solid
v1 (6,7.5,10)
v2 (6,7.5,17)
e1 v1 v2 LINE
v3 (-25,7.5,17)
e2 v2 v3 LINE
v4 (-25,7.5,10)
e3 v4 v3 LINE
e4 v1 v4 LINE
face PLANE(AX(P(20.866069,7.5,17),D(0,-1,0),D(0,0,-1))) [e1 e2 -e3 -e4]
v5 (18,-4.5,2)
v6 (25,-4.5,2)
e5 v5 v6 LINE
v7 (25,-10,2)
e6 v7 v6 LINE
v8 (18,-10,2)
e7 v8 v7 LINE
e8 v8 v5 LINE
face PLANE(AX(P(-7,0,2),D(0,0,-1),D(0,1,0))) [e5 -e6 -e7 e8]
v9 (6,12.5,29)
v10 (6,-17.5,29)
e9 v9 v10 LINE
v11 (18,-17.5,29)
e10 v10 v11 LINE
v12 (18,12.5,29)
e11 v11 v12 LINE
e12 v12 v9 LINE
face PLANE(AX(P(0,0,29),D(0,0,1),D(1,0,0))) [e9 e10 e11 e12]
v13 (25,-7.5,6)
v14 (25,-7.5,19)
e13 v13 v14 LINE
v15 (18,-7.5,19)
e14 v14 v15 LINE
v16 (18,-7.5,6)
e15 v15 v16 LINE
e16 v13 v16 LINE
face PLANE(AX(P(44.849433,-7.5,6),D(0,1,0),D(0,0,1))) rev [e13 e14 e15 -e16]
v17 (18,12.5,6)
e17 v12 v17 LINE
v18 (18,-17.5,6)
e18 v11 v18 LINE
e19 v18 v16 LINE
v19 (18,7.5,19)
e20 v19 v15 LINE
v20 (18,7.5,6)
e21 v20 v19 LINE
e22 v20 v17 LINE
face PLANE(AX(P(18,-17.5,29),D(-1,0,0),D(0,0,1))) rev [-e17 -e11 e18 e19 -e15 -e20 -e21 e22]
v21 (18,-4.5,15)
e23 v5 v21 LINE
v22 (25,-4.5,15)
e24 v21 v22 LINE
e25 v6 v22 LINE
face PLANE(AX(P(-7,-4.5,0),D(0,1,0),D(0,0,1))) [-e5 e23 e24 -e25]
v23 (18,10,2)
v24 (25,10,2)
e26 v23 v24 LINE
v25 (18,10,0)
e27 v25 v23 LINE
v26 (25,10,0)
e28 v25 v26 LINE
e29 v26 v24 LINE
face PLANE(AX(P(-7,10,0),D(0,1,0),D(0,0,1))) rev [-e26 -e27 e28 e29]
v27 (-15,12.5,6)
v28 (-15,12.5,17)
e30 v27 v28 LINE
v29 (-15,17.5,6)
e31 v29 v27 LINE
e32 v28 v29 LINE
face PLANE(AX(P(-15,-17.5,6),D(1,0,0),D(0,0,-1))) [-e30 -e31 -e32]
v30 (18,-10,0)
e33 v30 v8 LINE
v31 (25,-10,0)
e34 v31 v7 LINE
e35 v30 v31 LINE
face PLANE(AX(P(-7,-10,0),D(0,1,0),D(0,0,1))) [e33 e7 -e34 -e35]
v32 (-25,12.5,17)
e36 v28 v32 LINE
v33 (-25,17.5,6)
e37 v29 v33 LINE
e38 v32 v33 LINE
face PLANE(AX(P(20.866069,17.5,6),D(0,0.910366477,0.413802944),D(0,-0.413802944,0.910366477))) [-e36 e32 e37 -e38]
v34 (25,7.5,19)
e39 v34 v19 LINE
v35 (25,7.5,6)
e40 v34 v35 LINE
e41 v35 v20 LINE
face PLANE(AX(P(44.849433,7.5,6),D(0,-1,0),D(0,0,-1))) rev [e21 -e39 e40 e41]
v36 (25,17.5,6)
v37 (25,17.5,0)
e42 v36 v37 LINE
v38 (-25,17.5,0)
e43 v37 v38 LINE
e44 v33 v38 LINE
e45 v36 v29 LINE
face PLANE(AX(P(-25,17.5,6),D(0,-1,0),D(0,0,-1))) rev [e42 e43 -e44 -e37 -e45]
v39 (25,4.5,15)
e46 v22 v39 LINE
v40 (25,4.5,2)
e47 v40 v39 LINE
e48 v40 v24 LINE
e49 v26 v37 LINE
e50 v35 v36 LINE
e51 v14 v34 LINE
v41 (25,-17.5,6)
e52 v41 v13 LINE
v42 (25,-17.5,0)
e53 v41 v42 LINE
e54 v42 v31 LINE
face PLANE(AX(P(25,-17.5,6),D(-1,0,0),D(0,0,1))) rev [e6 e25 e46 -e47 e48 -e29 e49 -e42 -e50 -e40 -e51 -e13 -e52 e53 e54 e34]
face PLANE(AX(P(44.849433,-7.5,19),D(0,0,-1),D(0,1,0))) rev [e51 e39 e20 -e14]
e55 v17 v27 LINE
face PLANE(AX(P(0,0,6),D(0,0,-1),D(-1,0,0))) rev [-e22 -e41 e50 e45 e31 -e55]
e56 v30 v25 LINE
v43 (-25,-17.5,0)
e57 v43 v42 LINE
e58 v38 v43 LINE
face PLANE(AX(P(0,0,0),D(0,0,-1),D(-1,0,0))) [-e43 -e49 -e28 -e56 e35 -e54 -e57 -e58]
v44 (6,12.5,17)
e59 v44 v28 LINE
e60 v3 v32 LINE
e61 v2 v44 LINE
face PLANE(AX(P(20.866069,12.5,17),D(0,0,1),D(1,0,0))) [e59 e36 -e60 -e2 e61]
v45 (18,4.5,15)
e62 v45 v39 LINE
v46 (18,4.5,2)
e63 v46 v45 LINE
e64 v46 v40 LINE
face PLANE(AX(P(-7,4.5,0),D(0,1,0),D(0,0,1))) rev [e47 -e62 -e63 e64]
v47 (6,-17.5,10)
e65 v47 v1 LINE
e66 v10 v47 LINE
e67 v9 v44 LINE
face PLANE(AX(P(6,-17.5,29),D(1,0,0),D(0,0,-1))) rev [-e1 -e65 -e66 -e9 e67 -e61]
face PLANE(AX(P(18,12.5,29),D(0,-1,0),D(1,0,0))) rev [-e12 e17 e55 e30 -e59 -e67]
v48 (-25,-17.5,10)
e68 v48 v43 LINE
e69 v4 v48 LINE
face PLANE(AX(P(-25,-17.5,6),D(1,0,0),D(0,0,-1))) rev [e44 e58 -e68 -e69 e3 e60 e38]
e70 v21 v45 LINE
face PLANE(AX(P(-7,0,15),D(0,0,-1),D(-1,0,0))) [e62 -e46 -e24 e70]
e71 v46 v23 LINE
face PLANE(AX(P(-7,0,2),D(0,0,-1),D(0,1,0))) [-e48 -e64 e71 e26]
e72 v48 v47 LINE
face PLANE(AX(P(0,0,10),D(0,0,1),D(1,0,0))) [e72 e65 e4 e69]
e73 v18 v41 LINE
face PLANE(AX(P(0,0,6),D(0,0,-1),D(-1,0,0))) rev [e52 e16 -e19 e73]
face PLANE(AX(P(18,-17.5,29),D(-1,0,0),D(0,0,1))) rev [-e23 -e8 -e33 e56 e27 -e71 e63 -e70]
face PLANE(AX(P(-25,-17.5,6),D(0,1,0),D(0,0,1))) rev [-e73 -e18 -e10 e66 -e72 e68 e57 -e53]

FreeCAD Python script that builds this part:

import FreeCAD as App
import Part
import Sketcher
from FreeCAD import Vector

doc = App.newDocument("Part")
body = doc.addObject("PartDesign::Body", "Body")

sketch1 = body.newObject("Sketcher::SketchObject", "Sketch")
sketch1.AttachmentSupport = (doc.getObject("XY_Plane"), [""])
sketch1.MapMode = "FlatFace"
sketch1.addGeometry([
    Part.LineSegment(Vector(-25, 18, 0), Vector(-25, -18, 0)),
    Part.LineSegment(Vector(-25, -18, 0), Vector(25, -18, 0)),
    Part.LineSegment(Vector(25, -18, 0), Vector(25, 18, 0)),
    Part.LineSegment(Vector(25, 18, 0), Vector(-25, 18, 0)),
], False)
sketch1.addConstraint([
    Sketcher.Constraint("Coincident", 0, 2, 1, 1),
    Sketcher.Constraint("Coincident", 1, 2, 2, 1),
    Sketcher.Constraint("Coincident", 2, 2, 3, 1),
    Sketcher.Constraint("Coincident", 3, 2, 0, 1),
    Sketcher.Constraint("Vertical", 0),
    Sketcher.Constraint("Horizontal", 1),
    Sketcher.Constraint("Vertical", 2),
    Sketcher.Constraint("Horizontal", 3),
    Sketcher.Constraint("Symmetric", 0, 2, 2, 2, -1, 1),
    Sketcher.Constraint("DistanceX", 1, 1, 1, 2, 50.0),
    Sketcher.Constraint("DistanceY", 0, 2, 0, 1, 35.0),
])
pad1 = body.newObject("PartDesign::Pad", "Pad")
pad1.Profile = sketch1
pad1.Length = 6

sketch2 = body.newObject("Sketcher::SketchObject", "Sketch001")
sketch2.AttachmentSupport = (doc.getObject("XY_Plane"), [""])
sketch2.MapMode = "FlatFace"
sketch2.AttachmentOffset = App.Placement(Vector(0, 0, 6), App.Rotation())
sketch2.addGeometry([
    Part.LineSegment(Vector(6, 12, 0), Vector(6, -18, 0)),
    Part.LineSegment(Vector(6, -18, 0), Vector(18, -18, 0)),
    Part.LineSegment(Vector(18, -18, 0), Vector(18, 12, 0)),
    Part.LineSegment(Vector(18, 12, 0), Vector(6, 12, 0)),
], False)
sketch2.addConstraint([
    Sketcher.Constraint("Coincident", 0, 2, 1, 1),
    Sketcher.Constraint("Coincident", 1, 2, 2, 1),
    Sketcher.Constraint("Coincident", 2, 2, 3, 1),
    Sketcher.Constraint("Coincident", 3, 2, 0, 1),
    Sketcher.Constraint("Vertical", 0),
    Sketcher.Constraint("Horizontal", 1),
    Sketcher.Constraint("Vertical", 2),
    Sketcher.Constraint("Horizontal", 3),
    Sketcher.Constraint("DistanceX", 1, 1, 1, 2, 12.0),
    Sketcher.Constraint("DistanceY", 0, 2, 0, 1, 30.0),
    Sketcher.Constraint("DistanceX", -1, 1, 0, 2, 6.0),
    Sketcher.Constraint("DistanceY", 0, 2, -1, 1, 17.5),
])
pad2 = body.newObject("PartDesign::Pad", "Pad001")
pad2.Profile = sketch2
pad2.Length = 23

sketch3 = body.newObject("Sketcher::SketchObject", "Sketch002")
sketch3.AttachmentSupport = (doc.getObject("YZ_Plane"), [""])
sketch3.MapMode = "FlatFace"
sketch3.AttachmentOffset = App.Placement(Vector(0, 0, 18), App.Rotation())
sketch3.addGeometry([
    Part.LineSegment(Vector(8, 19, 0), Vector(-8, 19, 0)),
    Part.LineSegment(Vector(-8, 19, 0), Vector(-8, 6, 0)),
    Part.LineSegment(Vector(-8, 6, 0), Vector(8, 6, 0)),
    Part.LineSegment(Vector(8, 6, 0), Vector(8, 19, 0)),
], False)
sketch3.addConstraint([
    Sketcher.Constraint("Coincident", 0, 2, 1, 1),
    Sketcher.Constraint("Coincident", 1, 2, 2, 1),
    Sketcher.Constraint("Coincident", 2, 2, 3, 1),
    Sketcher.Constraint("Coincident", 3, 2, 0, 1),
    Sketcher.Constraint("Horizontal", 0),
    Sketcher.Constraint("Vertical", 1),
    Sketcher.Constraint("Horizontal", 2),
    Sketcher.Constraint("Vertical", 3),
    Sketcher.Constraint("DistanceX", 0, 2, 0, 1, 15.0),
    Sketcher.Constraint("DistanceY", 1, 2, 1, 1, 13.0),
    Sketcher.Constraint("DistanceY", -1, 1, 0, 2, 19.0),
    Sketcher.Constraint("DistanceX", 0, 2, -1, 1, 7.5),
])
pad3 = body.newObject("PartDesign::Pad", "Pad002")
pad3.Profile = sketch3
pad3.Length = 7

sketch4 = body.newObject("Sketcher::SketchObject", "Sketch003")
sketch4.AttachmentSupport = (doc.getObject("YZ_Plane"), [""])
sketch4.MapMode = "FlatFace"
sketch4.AttachmentOffset = App.Placement(Vector(0, 0, 25), App.Rotation())
sketch4.addGeometry([
    Part.LineSegment(Vector(4.5, 15, 0), Vector(-4.5, 15, 0)),
    Part.LineSegment(Vector(-4.5, 15, 0), Vector(-4.5, 2, 0)),
    Part.LineSegment(Vector(-4.5, 2, 0), Vector(-10, 2, 0)),
    Part.LineSegment(Vector(-10, 2, 0), Vector(-10, 0, 0)),
    Part.LineSegment(Vector(-10, 0, 0), Vector(10, 0, 0)),
    Part.LineSegment(Vector(10, 0, 0), Vector(10, 2, 0)),
    Part.LineSegment(Vector(10, 2, 0), Vector(4.5, 2, 0)),
    Part.LineSegment(Vector(4.5, 2, 0), Vector(4.5, 15, 0)),
], False)
sketch4.addConstraint([
    Sketcher.Constraint("Coincident", 0, 2, 1, 1),
    Sketcher.Constraint("Coincident", 1, 2, 2, 1),
    Sketcher.Constraint("Coincident", 2, 2, 3, 1),
    Sketcher.Constraint("Coincident", 3, 2, 4, 1),
    Sketcher.Constraint("Coincident", 4, 2, 5, 1),
    Sketcher.Constraint("Coincident", 5, 2, 6, 1),
    Sketcher.Constraint("Coincident", 6, 2, 7, 1),
    Sketcher.Constraint("Coincident", 7, 2, 0, 1),
    Sketcher.Constraint("Horizontal", 0),
    Sketcher.Constraint("Vertical", 1),
    Sketcher.Constraint("Horizontal", 2),
    Sketcher.Constraint("Vertical", 3),
    Sketcher.Constraint("Horizontal", 4),
    Sketcher.Constraint("Vertical", 5),
    Sketcher.Constraint("Horizontal", 6),
    Sketcher.Constraint("Vertical", 7),
    Sketcher.Constraint("Symmetric", 3, 2, 4, 2, -1, 1),
    Sketcher.Constraint("Symmetric", 1, 2, 6, 2, -2),
    Sketcher.Constraint("DistanceX", 0, 2, 0, 1, 9.0),
    Sketcher.Constraint("DistanceX", 4, 1, 4, 2, 20.0),
    Sketcher.Constraint("DistanceY", 1, 2, 1, 1, 13.0),
    Sketcher.Constraint("DistanceY", 3, 2, 3, 1, 2.0),
])
pocket1 = body.newObject("PartDesign::Pocket", "Pocket")
pocket1.Profile = sketch4
pocket1.Length = 7

sketch5 = body.newObject("Sketcher::SketchObject", "Sketch004")
sketch5.AttachmentSupport = (doc.getObject("YZ_Plane"), [""])
sketch5.MapMode = "FlatFace"
sketch5.AttachmentOffset = App.Placement(Vector(0, 0, -25), App.Rotation())
sketch5.addGeometry([
    Part.LineSegment(Vector(12, 17, 0), Vector(18, 6, 0)),
    Part.LineSegment(Vector(18, 6, 0), Vector(8, 6, 0)),
    Part.LineSegment(Vector(8, 6, 0), Vector(8, 17, 0)),
    Part.LineSegment(Vector(8, 17, 0), Vector(12, 17, 0)),
], False)
sketch5.addConstraint([
    Sketcher.Constraint("Coincident", 0, 2, 1, 1),
    Sketcher.Constraint("Coincident", 1, 2, 2, 1),
    Sketcher.Constraint("Coincident", 2, 2, 3, 1),
    Sketcher.Constraint("Coincident", 3, 2, 0, 1),
    Sketcher.Constraint("Horizontal", 1),
    Sketcher.Constraint("Vertical", 2),
    Sketcher.Constraint("Horizontal", 3),
    Sketcher.Constraint("DistanceX", 1, 2, 1, 1, 10.0),
    Sketcher.Constraint("DistanceX", 3, 1, 3, 2, 5.0),
    Sketcher.Constraint("DistanceY", 2, 1, 2, 2, 11.0),
    Sketcher.Constraint("DistanceY", -1, 1, 0, 2, 6.0),
    Sketcher.Constraint("DistanceX", -1, 1, 0, 2, 17.5),
])
pad4 = body.newObject("PartDesign::Pad", "Pad003")
pad4.Profile = sketch5
pad4.Length = 31

sketch6 = body.newObject("Sketcher::SketchObject", "Sketch005")
sketch6.AttachmentSupport = (doc.getObject("YZ_Plane"), [""])
sketch6.MapMode = "FlatFace"
sketch6.AttachmentOffset = App.Placement(Vector(0, 0, 6), App.Rotation())
sketch6.addGeometry([
    Part.LineSegment(Vector(18, 17, 0), Vector(12, 17, 0)),
    Part.LineSegment(Vector(12, 17, 0), Vector(12, 6, 0)),
    Part.LineSegment(Vector(12, 6, 0), Vector(18, 6, 0)),
    Part.LineSegment(Vector(18, 6, 0), Vector(18, 17, 0)),
], False)
sketch6.addConstraint([
    Sketcher.Constraint("Coincident", 0, 2, 1, 1),
    Sketcher.Constraint("Coincident", 1, 2, 2, 1),
    Sketcher.Constraint("Coincident", 2, 2, 3, 1),
    Sketcher.Constraint("Coincident", 3, 2, 0, 1),
    Sketcher.Constraint("Horizontal", 0),
    Sketcher.Constraint("Vertical", 1),
    Sketcher.Constraint("Horizontal", 2),
    Sketcher.Constraint("Vertical", 3),
    Sketcher.Constraint("DistanceX", 0, 2, 0, 1, 5.0),
    Sketcher.Constraint("DistanceY", 1, 2, 1, 1, 11.0),
    Sketcher.Constraint("DistanceY", -1, 1, 0, 2, 17.0),
    Sketcher.Constraint("DistanceX", -1, 1, 0, 2, 12.5),
])
pocket2 = body.newObject("PartDesign::Pocket", "Pocket001")
pocket2.Profile = sketch6
pocket2.Length = 21

sketch7 = body.newObject("Sketcher::SketchObject", "Sketch006")
sketch7.AttachmentSupport = (doc.getObject("XY_Plane"), [""])
sketch7.MapMode = "FlatFace"
sketch7.AttachmentOffset = App.Placement(Vector(0, 0, 6), App.Rotation())
sketch7.addGeometry([
    Part.LineSegment(Vector(-25, 8, 0), Vector(-25, -18, 0)),
    Part.LineSegment(Vector(-25, -18, 0), Vector(6, -18, 0)),
    Part.LineSegment(Vector(6, -18, 0), Vector(6, 8, 0)),
    Part.LineSegment(Vector(6, 8, 0), Vector(-25, 8, 0)),
], False)
sketch7.addConstraint([
    Sketcher.Constraint("Coincident", 0, 2, 1, 1),
    Sketcher.Constraint("Coincident", 1, 2, 2, 1),
    Sketcher.Constraint("Coincident", 2, 2, 3, 1),
    Sketcher.Constraint("Coincident", 3, 2, 0, 1),
    Sketcher.Constraint("Vertical", 0),
    Sketcher.Constraint("Horizontal", 1),
    Sketcher.Constraint("Vertical", 2),
    Sketcher.Constraint("Horizontal", 3),
    Sketcher.Constraint("DistanceX", 1, 1, 1, 2, 31.0),
    Sketcher.Constraint("DistanceY", 0, 2, 0, 1, 25.0),
    Sketcher.Constraint("DistanceX", 0, 2, -1, 1, 25.0),
    Sketcher.Constraint("DistanceY", 0, 2, -1, 1, 17.5),
])
pad5 = body.newObject("PartDesign::Pad", "Pad004")
pad5.Profile = sketch7
pad5.Length = 4

doc.recompute()
